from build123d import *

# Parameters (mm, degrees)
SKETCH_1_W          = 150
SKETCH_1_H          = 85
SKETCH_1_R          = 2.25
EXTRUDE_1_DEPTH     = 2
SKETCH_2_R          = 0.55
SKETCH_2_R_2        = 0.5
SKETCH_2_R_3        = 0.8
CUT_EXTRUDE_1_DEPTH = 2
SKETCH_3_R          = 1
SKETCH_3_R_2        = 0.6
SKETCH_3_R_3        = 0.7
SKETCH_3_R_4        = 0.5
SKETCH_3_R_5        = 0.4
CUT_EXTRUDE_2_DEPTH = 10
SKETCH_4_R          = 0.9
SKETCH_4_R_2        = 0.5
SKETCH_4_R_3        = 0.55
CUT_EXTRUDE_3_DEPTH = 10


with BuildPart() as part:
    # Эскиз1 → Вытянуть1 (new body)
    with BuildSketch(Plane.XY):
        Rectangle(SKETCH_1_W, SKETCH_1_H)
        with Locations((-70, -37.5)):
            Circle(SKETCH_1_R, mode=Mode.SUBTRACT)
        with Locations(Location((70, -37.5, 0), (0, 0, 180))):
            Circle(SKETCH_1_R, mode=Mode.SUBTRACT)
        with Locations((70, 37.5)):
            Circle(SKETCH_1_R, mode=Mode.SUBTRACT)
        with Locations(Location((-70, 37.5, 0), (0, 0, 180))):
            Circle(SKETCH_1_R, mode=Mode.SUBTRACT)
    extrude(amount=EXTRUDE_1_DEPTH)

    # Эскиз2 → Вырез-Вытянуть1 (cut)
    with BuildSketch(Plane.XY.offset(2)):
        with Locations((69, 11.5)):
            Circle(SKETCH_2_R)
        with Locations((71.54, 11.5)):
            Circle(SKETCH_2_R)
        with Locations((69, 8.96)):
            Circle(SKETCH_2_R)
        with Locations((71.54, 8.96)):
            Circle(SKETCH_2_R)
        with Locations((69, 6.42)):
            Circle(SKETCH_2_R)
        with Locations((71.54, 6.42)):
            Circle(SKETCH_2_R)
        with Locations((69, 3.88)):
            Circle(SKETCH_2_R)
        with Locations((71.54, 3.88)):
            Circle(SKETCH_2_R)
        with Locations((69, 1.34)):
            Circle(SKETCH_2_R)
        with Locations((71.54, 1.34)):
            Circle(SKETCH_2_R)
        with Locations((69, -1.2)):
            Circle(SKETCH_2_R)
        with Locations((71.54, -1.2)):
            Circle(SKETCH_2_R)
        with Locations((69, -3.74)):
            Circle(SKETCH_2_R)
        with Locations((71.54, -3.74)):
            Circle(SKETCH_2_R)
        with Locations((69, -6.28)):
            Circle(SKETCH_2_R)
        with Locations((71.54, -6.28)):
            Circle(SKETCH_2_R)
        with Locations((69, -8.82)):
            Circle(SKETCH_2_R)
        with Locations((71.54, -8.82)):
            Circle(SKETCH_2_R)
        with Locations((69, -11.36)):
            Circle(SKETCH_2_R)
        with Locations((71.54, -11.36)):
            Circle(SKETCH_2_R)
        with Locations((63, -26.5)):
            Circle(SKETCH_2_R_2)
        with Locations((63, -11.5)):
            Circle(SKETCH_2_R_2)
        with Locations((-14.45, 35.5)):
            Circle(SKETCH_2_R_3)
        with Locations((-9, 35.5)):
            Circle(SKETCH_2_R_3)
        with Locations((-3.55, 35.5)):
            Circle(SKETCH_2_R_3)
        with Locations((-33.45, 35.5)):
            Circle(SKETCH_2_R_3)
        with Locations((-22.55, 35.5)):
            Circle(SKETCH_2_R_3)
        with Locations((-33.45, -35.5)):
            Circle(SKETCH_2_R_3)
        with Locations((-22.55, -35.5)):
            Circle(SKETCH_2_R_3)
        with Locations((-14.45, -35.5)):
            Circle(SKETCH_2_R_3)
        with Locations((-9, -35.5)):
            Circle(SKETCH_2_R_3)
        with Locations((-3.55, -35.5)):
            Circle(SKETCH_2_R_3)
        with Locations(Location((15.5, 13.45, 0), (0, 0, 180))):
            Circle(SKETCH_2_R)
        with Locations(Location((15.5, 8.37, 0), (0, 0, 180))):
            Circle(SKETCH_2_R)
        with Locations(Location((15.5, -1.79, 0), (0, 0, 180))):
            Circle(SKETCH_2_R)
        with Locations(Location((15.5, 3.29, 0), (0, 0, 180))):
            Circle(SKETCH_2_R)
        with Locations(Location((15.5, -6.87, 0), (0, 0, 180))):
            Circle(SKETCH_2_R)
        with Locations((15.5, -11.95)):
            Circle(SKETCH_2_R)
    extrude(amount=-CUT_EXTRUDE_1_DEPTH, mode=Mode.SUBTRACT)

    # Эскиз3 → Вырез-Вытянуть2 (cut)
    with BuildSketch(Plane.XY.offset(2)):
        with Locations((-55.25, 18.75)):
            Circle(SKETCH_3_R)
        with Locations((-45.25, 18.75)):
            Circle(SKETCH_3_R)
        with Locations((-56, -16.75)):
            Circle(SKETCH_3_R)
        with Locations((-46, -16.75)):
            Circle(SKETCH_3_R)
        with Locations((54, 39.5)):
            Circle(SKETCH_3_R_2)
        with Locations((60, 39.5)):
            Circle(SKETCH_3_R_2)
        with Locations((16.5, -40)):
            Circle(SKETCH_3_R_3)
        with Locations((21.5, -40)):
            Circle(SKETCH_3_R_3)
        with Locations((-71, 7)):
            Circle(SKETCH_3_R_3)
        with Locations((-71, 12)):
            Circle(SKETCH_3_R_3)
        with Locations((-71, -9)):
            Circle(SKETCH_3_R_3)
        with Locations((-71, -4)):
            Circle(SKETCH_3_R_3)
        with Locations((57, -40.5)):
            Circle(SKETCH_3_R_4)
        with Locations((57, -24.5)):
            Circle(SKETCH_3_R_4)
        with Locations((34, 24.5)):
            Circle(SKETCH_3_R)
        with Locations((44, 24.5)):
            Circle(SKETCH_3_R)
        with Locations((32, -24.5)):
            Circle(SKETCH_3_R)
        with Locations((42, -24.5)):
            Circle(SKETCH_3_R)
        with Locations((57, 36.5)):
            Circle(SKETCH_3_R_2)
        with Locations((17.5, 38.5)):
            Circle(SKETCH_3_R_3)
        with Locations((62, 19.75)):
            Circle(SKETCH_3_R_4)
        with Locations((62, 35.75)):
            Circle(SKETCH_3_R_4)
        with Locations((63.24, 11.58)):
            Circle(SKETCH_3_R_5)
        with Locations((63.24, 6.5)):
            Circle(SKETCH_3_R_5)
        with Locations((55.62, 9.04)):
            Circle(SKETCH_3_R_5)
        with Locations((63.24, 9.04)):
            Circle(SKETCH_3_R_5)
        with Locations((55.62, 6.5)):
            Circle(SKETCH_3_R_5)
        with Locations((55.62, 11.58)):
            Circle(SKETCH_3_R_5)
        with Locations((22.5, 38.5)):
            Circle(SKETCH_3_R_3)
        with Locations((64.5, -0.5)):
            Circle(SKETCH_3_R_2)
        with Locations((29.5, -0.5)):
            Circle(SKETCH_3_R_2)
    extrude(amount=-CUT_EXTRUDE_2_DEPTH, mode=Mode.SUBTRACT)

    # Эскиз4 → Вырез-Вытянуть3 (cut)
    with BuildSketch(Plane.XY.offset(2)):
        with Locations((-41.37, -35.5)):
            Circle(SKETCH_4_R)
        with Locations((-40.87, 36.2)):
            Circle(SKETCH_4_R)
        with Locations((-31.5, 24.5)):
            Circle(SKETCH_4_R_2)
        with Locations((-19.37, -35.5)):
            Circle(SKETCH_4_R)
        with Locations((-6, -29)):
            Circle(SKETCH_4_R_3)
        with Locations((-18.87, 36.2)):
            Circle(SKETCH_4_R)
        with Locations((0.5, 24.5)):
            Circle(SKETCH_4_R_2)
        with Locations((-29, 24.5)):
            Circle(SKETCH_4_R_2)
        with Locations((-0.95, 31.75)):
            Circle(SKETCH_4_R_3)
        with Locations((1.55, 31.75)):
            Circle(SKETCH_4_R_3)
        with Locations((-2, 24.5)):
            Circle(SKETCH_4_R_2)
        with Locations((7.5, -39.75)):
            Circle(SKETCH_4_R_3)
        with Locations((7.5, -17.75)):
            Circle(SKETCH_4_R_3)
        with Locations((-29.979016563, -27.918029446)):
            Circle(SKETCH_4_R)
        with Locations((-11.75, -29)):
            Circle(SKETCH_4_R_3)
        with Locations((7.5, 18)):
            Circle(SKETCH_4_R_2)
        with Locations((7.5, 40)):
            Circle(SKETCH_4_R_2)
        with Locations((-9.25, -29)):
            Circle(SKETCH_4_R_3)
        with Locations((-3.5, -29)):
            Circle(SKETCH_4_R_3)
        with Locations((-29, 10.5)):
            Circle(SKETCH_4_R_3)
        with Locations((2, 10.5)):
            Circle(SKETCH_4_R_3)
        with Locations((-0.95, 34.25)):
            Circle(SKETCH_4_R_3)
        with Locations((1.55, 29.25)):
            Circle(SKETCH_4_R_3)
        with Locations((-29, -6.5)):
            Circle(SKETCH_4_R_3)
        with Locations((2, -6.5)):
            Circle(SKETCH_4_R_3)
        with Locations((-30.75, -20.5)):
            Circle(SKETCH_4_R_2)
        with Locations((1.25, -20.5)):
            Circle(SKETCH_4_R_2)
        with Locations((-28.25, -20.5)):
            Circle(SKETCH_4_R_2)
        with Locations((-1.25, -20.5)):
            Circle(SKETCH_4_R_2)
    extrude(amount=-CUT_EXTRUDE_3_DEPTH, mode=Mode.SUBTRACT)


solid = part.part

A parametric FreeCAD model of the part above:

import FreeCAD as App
import Part
import Sketcher
from FreeCAD import Vector


def add_polygon(sketch, points):
    """Adds a closed chain of lines whose ends are joined by coincident constraints."""
    first, n = sketch.GeometryCount, len(points)
    for a, b in zip(points, points[1:] + points[:1]):
        sketch.addGeometry(Part.LineSegment(App.Vector(*a, 0), App.Vector(*b, 0)), False)
    for i in range(n):
        sketch.addConstraint(Sketcher.Constraint("Coincident", first + i, 2, first + (i + 1) % n, 1))

doc = App.newDocument("Part")
params = doc.addObject("Spreadsheet::Sheet", "Params")
for row, (alias, value) in enumerate([
    ("sketch1_diameter", "4.5 mm"),
    ("sketch1_width", "150 mm"),
    ("sketch1_height", "85 mm"),
    ("pad1_length", "2 mm"),
    ("sketch2_diameter", "1 mm"),
    ("sketch2_diameter2", "1.1 mm"),
    ("sketch2_diameter3", "1.6 mm"),
    ("pocket1_length", "2 mm"),
    ("sketch3_diameter", "2 mm"),
    ("sketch3_diameter2", "1 mm"),
    ("sketch3_diameter3", "1.2 mm"),
    ("sketch3_diameter4", "1.4 mm"),
    ("sketch3_diameter5", "0.8 mm"),
    ("pocket2_length", "10 mm"),
    ("sketch4_diameter", "1 mm"),
    ("sketch4_diameter2", "1.8 mm"),
    ("sketch4_diameter3", "1.1 mm"),
    ("pocket3_length", "10 mm"),
], start=1):
    params.set(f"A{row}", alias)
    params.set(f"B{row}", "=" + value)
    params.setAlias(f"B{row}", alias)

body = doc.addObject("PartDesign::Body", "Body")

sketch1 = doc.addObject("Sketcher::SketchObject", "Sketch")
body.addObject(sketch1)
sketch1.AttachmentSupport = (doc.XY_Plane, [""])
sketch1.MapMode = "FlatFace"
add_polygon(sketch1, [(-75, 42.5), (-75, -42.5), (75, -42.5), (75, 42.5)])
sketch1.addGeometry(Part.Circle(Vector(-70, -37.5, 0), Vector(0, 0, 1), 2.2), False)
sketch1.addGeometry(Part.Circle(Vector(70, -37.5, 0), Vector(0, 0, 1), 2.2), False)
sketch1.addGeometry(Part.Circle(Vector(-70, 37.5, 0), Vector(0, 0, 1), 2.2), False)
sketch1.addGeometry(Part.Circle(Vector(70, 37.5, 0), Vector(0, 0, 1), 2.2), False)
sketch1.addConstraint([
    Sketcher.Constraint("Vertical", 0),
    Sketcher.Constraint("Horizontal", 1),
    Sketcher.Constraint("Vertical", 2),
    Sketcher.Constraint("Horizontal", 3),
    Sketcher.Constraint("Equal", 4, 5),
    Sketcher.Constraint("Equal", 5, 6),
    Sketcher.Constraint("Equal", 6, 7),
    Sketcher.Constraint("Symmetric", 5, 3, 6, 3, -1, 1),
    Sketcher.Constraint("Symmetric", 4, 3, 7, 3, -1, 1),
    Sketcher.Constraint("Symmetric", 0, 2, 2, 2, -1, 1),
    Sketcher.Constraint("Symmetric", 4, 3, 5, 3, -2),
    Sketcher.Constraint("Diameter", 4, 4.5),
    Sketcher.Constraint("DistanceX", 1, 1, 1, 2, 150.0),
    Sketcher.Constraint("DistanceY", 0, 2, 0, 1, 85.0),
    Sketcher.Constraint("DistanceX", 4, 3, -1, 1, 70.0),
    Sketcher.Constraint("DistanceY", 4, 3, 6, 3, 75.0),
])
sketch1.setExpression("Constraints[15]", "Params.sketch1_diameter")
sketch1.setExpression("Constraints[16]", "Params.sketch1_width")
sketch1.setExpression("Constraints[17]", "Params.sketch1_height")
pad1 = doc.addObject("PartDesign::Pad", "Pad")
body.addObject(pad1)
pad1.Profile = sketch1
pad1.setExpression("Length", "Params.pad1_length")

sketch2 = doc.addObject("Sketcher::SketchObject", "Sketch001")
body.addObject(sketch2)
sketch2.AttachmentSupport = (doc.XY_Plane, [""])
sketch2.MapMode = "FlatFace"
sketch2.AttachmentOffset = App.Placement(Vector(0, 0, 2), App.Rotation())
sketch2.addGeometry([
    Part.Circle(Vector(69, 11.5, 0), Vector(0, 0, 1), 0.6),
    Part.Circle(Vector(71.5, 11.5, 0), Vector(0, 0, 1), 0.6),
    Part.Circle(Vector(69, 9, 0), Vector(0, 0, 1), 0.6),
    Part.Circle(Vector(71.5, 9, 0), Vector(0, 0, 1), 0.6),
    Part.Circle(Vector(69, 6.4, 0), Vector(0, 0, 1), 0.6),
    Part.Circle(Vector(71.5, 6.4, 0), Vector(0, 0, 1), 0.6),
    Part.Circle(Vector(69, 3.9, 0), Vector(0, 0, 1), 0.6),
    Part.Circle(Vector(71.5, 3.9, 0), Vector(0, 0, 1), 0.6),
    Part.Circle(Vector(69, 1.3, 0), Vector(0, 0, 1), 0.6),
    Part.Circle(Vector(71.5, 1.3, 0), Vector(0, 0, 1), 0.6),
    Part.Circle(Vector(69, -1.2, 0), Vector(0, 0, 1), 0.6),
    Part.Circle(Vector(71.5, -1.2, 0), Vector(0, 0, 1), 0.6),
    Part.Circle(Vector(69, -3.7, 0), Vector(0, 0, 1), 0.6),
    Part.Circle(Vector(71.5, -3.7, 0), Vector(0, 0, 1), 0.6),
    Part.Circle(Vector(69, -6.3, 0), Vector(0, 0, 1), 0.6),
    Part.Circle(Vector(71.5, -6.3, 0), Vector(0, 0, 1), 0.6),
    Part.Circle(Vector(69, -8.8, 0), Vector(0, 0, 1), 0.6),
    Part.Circle(Vector(71.5, -8.8, 0), Vector(0, 0, 1), 0.6),
    Part.Circle(Vector(69, -11.4, 0), Vector(0, 0, 1), 0.6),
    Part.Circle(Vector(71.5, -11.4, 0), Vector(0, 0, 1), 0.6),
    Part.Circle(Vector(63, -26.5, 0), Vector(0, 0, 1), 0.5),
    Part.Circle(Vector(63, -11.5, 0), Vector(0, 0, 1), 0.5),
    Part.Circle(Vector(-14.4, 35.5, 0), Vector(0, 0, 1), 0.8),
    Part.Circle(Vector(-9, 35.5, 0), Vector(0, 0, 1), 0.8),
    Part.Circle(Vector(-3.5, 35.5, 0), Vector(0, 0, 1), 0.8),
    Part.Circle(Vector(-33.5, 35.5, 0), Vector(0, 0, 1), 0.8),
    Part.Circle(Vector(-22.6, 35.5, 0), Vector(0, 0, 1), 0.8),
    Part.Circle(Vector(-33.5, -35.5, 0), Vector(0, 0, 1), 0.8),
    Part.Circle(Vector(-22.6, -35.5, 0), Vector(0, 0, 1), 0.8),
    Part.Circle(Vector(-14.4, -35.5, 0), Vector(0, 0, 1), 0.8),
    Part.Circle(Vector(-9, -35.5, 0), Vector(0, 0, 1), 0.8),
    Part.Circle(Vector(-3.5, -35.5, 0), Vector(0, 0, 1), 0.8),
    Part.Circle(Vector(15.5, 13.4, 0), Vector(0, 0, 1), 0.6),
    Part.Circle(Vector(15.5, 8.4, 0), Vector(0, 0, 1), 0.6),
    Part.Circle(Vector(15.5, -1.8, 0), Vector(0, 0, 1), 0.6),
    Part.Circle(Vector(15.5, 3.3, 0), Vector(0, 0, 1), 0.6),
    Part.Circle(Vector(15.5, -6.9, 0), Vector(0, 0, 1), 0.6),
    Part.Circle(Vector(15.5, -11.9, 0), Vector(0, 0, 1), 0.6),
], False)
sketch2.addConstraint([
    Sketcher.Constraint("Equal", 0, 1),
    Sketcher.Constraint("Equal", 1, 2),
    Sketcher.Constraint("Equal", 2, 3),
    Sketcher.Constraint("Equal", 3, 4),
    Sketcher.Constraint("Equal", 4, 5),
    Sketcher.Constraint("Equal", 5, 6),
    Sketcher.Constraint("Equal", 6, 7),
    Sketcher.Constraint("Equal", 7, 8),
    Sketcher.Constraint("Equal", 8, 9),
    Sketcher.Constraint("Equal", 9, 10),
    Sketcher.Constraint("Equal", 10, 11),
    Sketcher.Constraint("Equal", 11, 12),
    Sketcher.Constraint("Equal", 12, 13),
    Sketcher.Constraint("Equal", 13, 14),
    Sketcher.Constraint("Equal", 14, 15),
    Sketcher.Constraint("Equal", 15, 16),
    Sketcher.Constraint("Equal", 16, 17),
    Sketcher.Constraint("Equal", 17, 18),
    Sketcher.Constraint("Equal", 18, 19),
    Sketcher.Constraint("Equal", 20, 21),
    Sketcher.Constraint("Equal", 22, 23),
    Sketcher.Constraint("Equal", 23, 24),
    Sketcher.Constraint("Equal", 24, 25),
    Sketcher.Constraint("Equal", 25, 26),
    Sketcher.Constraint("Equal", 26, 27),
    Sketcher.Constraint("Equal", 27, 28),
    Sketcher.Constraint("Equal", 28, 29),
    Sketcher.Constraint("Equal", 29, 30),
    Sketcher.Constraint("Equal", 30, 31),
    Sketcher.Constraint("Equal", 19, 32),
    Sketcher.Constraint("Equal", 32, 33),
    Sketcher.Constraint("Equal", 33, 34),
    Sketcher.Constraint("Equal", 34, 35),
    Sketcher.Constraint("Equal", 35, 36),
    Sketcher.Constraint("Equal", 36, 37),
    Sketcher.Constraint("Symmetric", 25, 3, 27, 3, -1),
    Sketcher.Constraint("Symmetric", 26, 3, 28, 3, -1),
    Sketcher.Constraint("Symmetric", 22, 3, 29, 3, -1),
    Sketcher.Constraint("Symmetric", 23, 3, 30, 3, -1),
    Sketcher.Constraint("Symmetric", 24, 3, 31, 3, -1),
    Sketcher.Constraint("Horizontal", 0, 3, 1, 3),
    Sketcher.Constraint("Horizontal", 2, 3, 3, 3),
    Sketcher.Constraint("Horizontal", 4, 3, 5, 3),
    Sketcher.Constraint("Horizontal", 6, 3, 7, 3),
    Sketcher.Constraint("Horizontal", 8, 3, 9, 3),
    Sketcher.Constraint("Horizontal", 10, 3, 11, 3),
    Sketcher.Constraint("Horizontal", 12, 3, 13, 3),
    Sketcher.Constraint("Horizontal", 14, 3, 15, 3),
    Sketcher.Constraint("Horizontal", 16, 3, 17, 3),
    Sketcher.Constraint("Horizontal", 18, 3, 19, 3),
    Sketcher.Constraint("Horizontal", 22, 3, 23, 3),
    Sketcher.Constraint("Horizontal", 23, 3, 24, 3),
    Sketcher.Constraint("Horizontal", 24, 3, 25, 3),
    Sketcher.Constraint("Horizontal", 25, 3, 26, 3),
    Sketcher.Constraint("Vertical", 0, 3, 2, 3),
    Sketcher.Constraint("Vertical", 1, 3, 3, 3),
    Sketcher.Constraint("Vertical", 2, 3, 4, 3),
    Sketcher.Constraint("Vertical", 3, 3, 5, 3),
    Sketcher.Constraint("Vertical", 4, 3, 6, 3),
    Sketcher.Constraint("Vertical", 5, 3, 7, 3),
    Sketcher.Constraint("Vertical", 6, 3, 8, 3),
    Sketcher.Constraint("Vertical", 7, 3, 9, 3),
    Sketcher.Constraint("Vertical", 8, 3, 10, 3),
    Sketcher.Constraint("Vertical", 9, 3, 11, 3),
    Sketcher.Constraint("Vertical", 10, 3, 12, 3),
    Sketcher.Constraint("Vertical", 11, 3, 13, 3),
    Sketcher.Constraint("Vertical", 12, 3, 14, 3),
    Sketcher.Constraint("Vertical", 13, 3, 15, 3),
    Sketcher.Constraint("Vertical", 14, 3, 16, 3),
    Sketcher.Constraint("Vertical", 15, 3, 17, 3),
    Sketcher.Constraint("Vertical", 16, 3, 18, 3),
    Sketcher.Constraint("Vertical", 17, 3, 19, 3),
    Sketcher.Constraint("Vertical", 20, 3, 21, 3),
    Sketcher.Constraint("Vertical", 32, 3, 33, 3),
    Sketcher.Constraint("Vertical", 33, 3, 34, 3),
    Sketcher.Constraint("Vertical", 34, 3, 35, 3),
    Sketcher.Constraint("Vertical", 35, 3, 36, 3),
    Sketcher.Constraint("Vertical", 36, 3, 37, 3),
    Sketcher.Constraint("Diameter", 20, 1.0),
    Sketcher.Constraint("Diameter", 0, 1.1),
    Sketcher.Constraint("Diameter", 22, 1.6),
    Sketcher.Constraint("DistanceX", -1, 1, 0, 3, 69.0),
    Sketcher.Constraint("DistanceX", -1, 1, 20, 3, 63.0),
    Sketcher.Constraint("DistanceX", 23, 3, -1, 1, 9.0),
    Sketcher.Constraint("DistanceY", 0, 3, 22, 3, 24.0),
    Sketcher.Constraint("DistanceX", 25, 3, 22, 3, 19.0),
    Sketcher.Constraint("DistanceX", 26, 3, 24, 3, 19.0),
    Sketcher.Constraint("DistanceY", 27, 3, 25, 3, 71.0),
    Sketcher.Constraint("DistanceY", 31, 3, 20, 3, 9.0),
    Sketcher.Constraint("DistanceY", 10, 3, -1, 1, 1.2),
    Sketcher.Constraint("DistanceY", 21, 3, -1, 1, 11.5),
    Sketcher.Constraint("DistanceX", -1, 1, 32, 3, 15.5),
    Sketcher.Constraint("DistanceX", 22, 3, 24, 3, 10.9),
    Sketcher.Constraint("DistanceY", 37, 3, 32, 3, 25.4),
    Sketcher.Constraint("DistanceX", -1, 1, 1, 3, 71.54),
    Sketcher.Constraint("DistanceY", -1, 1, 2, 3, 8.96),
    Sketcher.Constraint("DistanceY", -1, 1, 4, 3, 6.42),
    Sketcher.Constraint("DistanceY", -1, 1, 6, 3, 3.88),
    Sketcher.Constraint("DistanceY", -1, 1, 8, 3, 1.34),
    Sketcher.Constraint("DistanceY", 12, 3, -1, 1, 3.74),
    Sketcher.Constraint("DistanceY", 14, 3, -1, 1, 6.28),
    Sketcher.Constraint("DistanceY", 16, 3, -1, 1, 8.82),
    Sketcher.Constraint("DistanceY", 18, 3, -1, 1, 11.36),
    Sketcher.Constraint("DistanceX", 22, 3, -1, 1, 14.45),
    Sketcher.Constraint("DistanceY", -1, 1, 32, 3, 13.45),
    Sketcher.Constraint("DistanceY", -1, 1, 33, 3, 8.37),
    Sketcher.Constraint("DistanceY", 34, 3, -1, 1, 1.79),
    Sketcher.Constraint("DistanceY", -1, 1, 35, 3, 3.29),
    Sketcher.Constraint("DistanceY", 36, 3, -1, 1, 6.87),
])
sketch2.setExpression("Constraints[78]", "Params.sketch2_diameter")
sketch2.setExpression("Constraints[79]", "Params.sketch2_diameter2")
sketch2.setExpression("Constraints[80]", "Params.sketch2_diameter3")
pocket1 = doc.addObject("PartDesign::Pocket", "Pocket")
body.addObject(pocket1)
pocket1.Profile = sketch2
pocket1.setExpression("Length", "Params.pocket1_length")

sketch3 = doc.addObject("Sketcher::SketchObject", "Sketch002")
body.addObject(sketch3)
sketch3.AttachmentSupport = (doc.XY_Plane, [""])
sketch3.MapMode = "FlatFace"
sketch3.AttachmentOffset = App.Placement(Vector(0, 0, 2), App.Rotation())
sketch3.addGeometry([
    Part.Circle(Vector(-55.25, 18.75, 0), Vector(0, 0, 1), 1),
    Part.Circle(Vector(-45.25, 18.75, 0), Vector(0, 0, 1), 1),
    Part.Circle(Vector(-56, -16.75, 0), Vector(0, 0, 1), 1),
    Part.Circle(Vector(-46, -16.75, 0), Vector(0, 0, 1), 1),
    Part.Circle(Vector(54, 39.5, 0), Vector(0, 0, 1), 0.6),
    Part.Circle(Vector(60, 39.5, 0), Vector(0, 0, 1), 0.6),
    Part.Circle(Vector(16.5, -40, 0), Vector(0, 0, 1), 0.7),
    Part.Circle(Vector(21.5, -40, 0), Vector(0, 0, 1), 0.7),
    Part.Circle(Vector(-71, 7, 0), Vector(0, 0, 1), 0.7),
    Part.Circle(Vector(-71, 12, 0), Vector(0, 0, 1), 0.7),
    Part.Circle(Vector(-71, -9, 0), Vector(0, 0, 1), 0.7),
    Part.Circle(Vector(-71, -4, 0), Vector(0, 0, 1), 0.7),
    Part.Circle(Vector(57, -40.5, 0), Vector(0, 0, 1), 0.5),
    Part.Circle(Vector(57, -24.5, 0), Vector(0, 0, 1), 0.5),
    Part.Circle(Vector(34, 24.5, 0), Vector(0, 0, 1), 1),
    Part.Circle(Vector(44, 24.5, 0), Vector(0, 0, 1), 1),
    Part.Circle(Vector(32, -24.5, 0), Vector(0, 0, 1), 1),
    Part.Circle(Vector(42, -24.5, 0), Vector(0, 0, 1), 1),
    Part.Circle(Vector(57, 36.5, 0), Vector(0, 0, 1), 0.6),
    Part.Circle(Vector(17.5, 38.5, 0), Vector(0, 0, 1), 0.7),
    Part.Circle(Vector(62, 19.75, 0), Vector(0, 0, 1), 0.5),
    Part.Circle(Vector(62, 35.75, 0), Vector(0, 0, 1), 0.5),
    Part.Circle(Vector(63.24, 11.58, 0), Vector(0, 0, 1), 0.4),
    Part.Circle(Vector(63.24, 6.5, 0), Vector(0, 0, 1), 0.4),
    Part.Circle(Vector(55.62, 9.04, 0), Vector(0, 0, 1), 0.4),
    Part.Circle(Vector(63.24, 9.04, 0), Vector(0, 0, 1), 0.4),
    Part.Circle(Vector(55.62, 6.5, 0), Vector(0, 0, 1), 0.4),
    Part.Circle(Vector(55.62, 11.58, 0), Vector(0, 0, 1), 0.4),
    Part.Circle(Vector(22.5, 38.5, 0), Vector(0, 0, 1), 0.7),
    Part.Circle(Vector(64.5, -0.5, 0), Vector(0, 0, 1), 0.6),
    Part.Circle(Vector(29.5, -0.5, 0), Vector(0, 0, 1), 0.6),
], False)
sketch3.addConstraint([
    Sketcher.Constraint("Equal", 0, 1),
    Sketcher.Constraint("Equal", 1, 2),
    Sketcher.Constraint("Equal", 2, 3),
    Sketcher.Constraint("Equal", 4, 5),
    Sketcher.Constraint("Equal", 6, 7),
    Sketcher.Constraint("Equal", 7, 8),
    Sketcher.Constraint("Equal", 8, 9),
    Sketcher.Constraint("Equal", 9, 10),
    Sketcher.Constraint("Equal", 10, 11),
    Sketcher.Constraint("Equal", 12, 13),
    Sketcher.Constraint("Equal", 3, 14),
    Sketcher.Constraint("Equal", 14, 15),
    Sketcher.Constraint("Equal", 15, 16),
    Sketcher.Constraint("Equal", 16, 17),
    Sketcher.Constraint("Equal", 5, 18),
    Sketcher.Constraint("Equal", 11, 19),
    Sketcher.Constraint("Equal", 13, 20),
    Sketcher.Constraint("Equal", 20, 21),
    Sketcher.Constraint("Equal", 22, 23),
    Sketcher.Constraint("Equal", 23, 24),
    Sketcher.Constraint("Equal", 24, 25),
    Sketcher.Constraint("Equal", 25, 26),
    Sketcher.Constraint("Equal", 26, 27),
    Sketcher.Constraint("Equal", 19, 28),
    Sketcher.Constraint("Equal", 18, 29),
    Sketcher.Constraint("Equal", 29, 30),
    Sketcher.Constraint("Horizontal", 0, 3, 1, 3),
    Sketcher.Constraint("Horizontal", 2, 3, 3, 3),
    Sketcher.Constraint("Horizontal", 4, 3, 5, 3),
    Sketcher.Constraint("Horizontal", 6, 3, 7, 3),
    Sketcher.Constraint("Horizontal", 14, 3, 15, 3),
    Sketcher.Constraint("Horizontal", 13, 3, 16, 3),
    Sketcher.Constraint("Horizontal", 16, 3, 17, 3),
    Sketcher.Constraint("Horizontal", 24, 3, 25, 3),
    Sketcher.Constraint("Horizontal", 23, 3, 26, 3),
    Sketcher.Constraint("Horizontal", 22, 3, 27, 3),
    Sketcher.Constraint("Horizontal", 19, 3, 28, 3),
    Sketcher.Constraint("Horizontal", 29, 3, 30, 3),
    Sketcher.Constraint("Vertical", 8, 3, 9, 3),
    Sketcher.Constraint("Vertical", 9, 3, 10, 3),
    Sketcher.Constraint("Vertical", 10, 3, 11, 3),
    Sketcher.Constraint("Vertical", 12, 3, 13, 3),
    Sketcher.Constraint("Vertical", 13, 3, 18, 3),
    Sketcher.Constraint("Vertical", 20, 3, 21, 3),
    Sketcher.Constraint("Vertical", 22, 3, 23, 3),
    Sketcher.Constraint("Vertical", 23, 3, 25, 3),
    Sketcher.Constraint("Vertical", 24, 3, 26, 3),
    Sketcher.Constraint("Vertical", 26, 3, 27, 3),
    Sketcher.Constraint("Diameter", 0, 2.0),
    Sketcher.Constraint("Diameter", 12, 1.0),
    Sketcher.Constraint("Diameter", 4, 1.2),
    Sketcher.Constraint("Diameter", 6, 1.4),
    Sketcher.Constraint("Diameter", 22, 0.8),
    Sketcher.Constraint("DistanceX", 2, 3, -1, 1, 56.0),
    Sketcher.Constraint("DistanceX", 3, 3, -1, 1, 46.0),
    Sketcher.Constraint("DistanceX", -1, 1, 4, 3, 54.0),
    Sketcher.Constraint("DistanceX", -1, 1, 5, 3, 60.0),
    Sketcher.Constraint("DistanceY", 6, 3, -1, 1, 40.0),
    Sketcher.Constraint("DistanceX", 8, 3, -1, 1, 71.0),
    Sketcher.Constraint("DistanceY", -1, 1, 8, 3, 7.0),
    Sketcher.Constraint("DistanceY", -1, 1, 9, 3, 12.0),
    Sketcher.Constraint("DistanceY", 10, 3, -1, 1, 9.0),
    Sketcher.Constraint("DistanceY", 11, 3, -1, 1, 4.0),
    Sketcher.Constraint("DistanceX", -1, 1, 12, 3, 57.0),
    Sketcher.Constraint("DistanceX", -1, 1, 14, 3, 34.0),
    Sketcher.Constraint("DistanceX", -1, 1, 15, 3, 44.0),
    Sketcher.Constraint("DistanceX", -1, 1, 16, 3, 32.0),
    Sketcher.Constraint("DistanceX", -1, 1, 17, 3, 42.0),
    Sketcher.Constraint("DistanceX", -1, 1, 20, 3, 62.0),
    Sketcher.Constraint("DistanceX", 0, 3, 1, 3, 10.0),
    Sketcher.Constraint("DistanceX", 6, 3, 7, 3, 5.0),
    Sketcher.Constraint("DistanceY", 12, 3, 4, 3, 80.0),
    Sketcher.Constraint("DistanceY", 12, 3, 13, 3, 16.0),
    Sketcher.Constraint("DistanceY", 14, 3, 4, 3, 15.0),
    Sketcher.Constraint("DistanceY", 18, 3, 4, 3, 3.0),
    Sketcher.Constraint("DistanceY", 14, 3, 19, 3, 14.0),
    Sketcher.Constraint("DistanceY", 20, 3, 21, 3, 16.0),
    Sketcher.Constraint("DistanceY", 23, 3, 15, 3, 18.0),
    Sketcher.Constraint("DistanceX", 19, 3, 28, 3, 5.0),
    Sketcher.Constraint("DistanceY", 29, 3, 23, 3, 7.0),
    Sketcher.Constraint("DistanceY", -1, 1, 4, 3, 39.5),
    Sketcher.Constraint("DistanceX", -1, 1, 6, 3, 16.5),
    Sketcher.Constraint("DistanceX", -1, 1, 19, 3, 17.5),
    Sketcher.Constraint("DistanceX", -1, 1, 29, 3, 64.5),
    Sketcher.Constraint("DistanceX", -1, 1, 30, 3, 29.5),
    Sketcher.Constraint("DistanceY", 2, 3, 0, 3, 35.5),
    Sketcher.Constraint("DistanceX", 0, 3, -1, 1, 55.25),
    Sketcher.Constraint("DistanceY", -1, 1, 0, 3, 18.75),
    Sketcher.Constraint("DistanceY", -1, 1, 20, 3, 19.75),
    Sketcher.Constraint("DistanceX", -1, 1, 22, 3, 63.24),
    Sketcher.Constraint("DistanceY", -1, 1, 22, 3, 11.58),
    Sketcher.Constraint("DistanceX", -1, 1, 24, 3, 55.62),
    Sketcher.Constraint("DistanceY", -1, 1, 24, 3, 9.04),
])
sketch3.setExpression("Constraints[48]", "Params.sketch3_diameter")
sketch3.setExpression("Constraints[49]", "Params.sketch3_diameter2")
sketch3.setExpression("Constraints[50]", "Params.sketch3_diameter3")
sketch3.setExpression("Constraints[51]", "Params.sketch3_diameter4")
sketch3.setExpression("Constraints[52]", "Params.sketch3_diameter5")
pocket2 = doc.addObject("PartDesign::Pocket", "Pocket001")
body.addObject(pocket2)
pocket2.Profile = sketch3
pocket2.setExpression("Length", "Params.pocket2_length")

sketch4 = doc.addObject("Sketcher::SketchObject", "Sketch003")
body.addObject(sketch4)
sketch4.AttachmentSupport = (doc.XY_Plane, [""])
sketch4.MapMode = "FlatFace"
sketch4.AttachmentOffset = App.Placement(Vector(0, 0, 2), App.Rotation())
sketch4.addGeometry([
    Part.Circle(Vector(-41.4, -35.5, 0), Vector(0, 0, 1), 0.9),
    Part.Circle(Vector(-40.9, 36.2, 0), Vector(0, 0, 1), 0.9),
    Part.Circle(Vector(-31.5, 24.5, 0), Vector(0, 0, 1), 0.5),
    Part.Circle(Vector(-19.4, -35.5, 0), Vector(0, 0, 1), 0.9),
    Part.Circle(Vector(-6, -29, 0), Vector(0, 0, 1), 0.6),
    Part.Circle(Vector(-18.9, 36.2, 0), Vector(0, 0, 1), 0.9),
    Part.Circle(Vector(0.5, 24.5, 0), Vector(0, 0, 1), 0.5),
    Part.Circle(Vector(-29, 24.5, 0), Vector(0, 0, 1), 0.5),
    Part.Circle(Vector(-0.9, 31.8, 0), Vector(0, 0, 1), 0.6),
    Part.Circle(Vector(1.6, 31.8, 0), Vector(0, 0, 1), 0.6),
    Part.Circle(Vector(-2, 24.5, 0), Vector(0, 0, 1), 0.5),
    Part.Circle(Vector(7.5, -39.8, 0), Vector(0, 0, 1), 0.6),
    Part.Circle(Vector(7.5, -17.8, 0), Vector(0, 0, 1), 0.6),
    Part.Circle(Vector(-30, -27.9, 0), Vector(0, 0, 1), 0.9),
    Part.Circle(Vector(-11.8, -29, 0), Vector(0, 0, 1), 0.6),
    Part.Circle(Vector(7.5, 18, 0), Vector(0, 0, 1), 0.5),
    Part.Circle(Vector(7.5, 40, 0), Vector(0, 0, 1), 0.5),
    Part.Circle(Vector(-9.2, -29, 0), Vector(0, 0, 1), 0.6),
    Part.Circle(Vector(-3.5, -29, 0), Vector(0, 0, 1), 0.6),
    Part.Circle(Vector(-29, 10.5, 0), Vector(0, 0, 1), 0.6),
    Part.Circle(Vector(2, 10.5, 0), Vector(0, 0, 1), 0.6),
    Part.Circle(Vector(-0.9, 34.2, 0), Vector(0, 0, 1), 0.6),
    Part.Circle(Vector(1.6, 29.2, 0), Vector(0, 0, 1), 0.6),
    Part.Circle(Vector(-29, -6.5, 0), Vector(0, 0, 1), 0.6),
    Part.Circle(Vector(2, -6.5, 0), Vector(0, 0, 1), 0.6),
    Part.Circle(Vector(-30.8, -20.5, 0), Vector(0, 0, 1), 0.5),
    Part.Circle(Vector(1.2, -20.5, 0), Vector(0, 0, 1), 0.5),
    Part.Circle(Vector(-28.2, -20.5, 0), Vector(0, 0, 1), 0.5),
    Part.Circle(Vector(-1.2, -20.5, 0), Vector(0, 0, 1), 0.5),
], False)
sketch4.addConstraint([
    Sketcher.Constraint("Equal", 0, 1),
    Sketcher.Constraint("Equal", 1, 3),
    Sketcher.Constraint("Equal", 3, 5),
    Sketcher.Constraint("Equal", 2, 6),
    Sketcher.Constraint("Equal", 6, 7),
    Sketcher.Constraint("Equal", 4, 8),
    Sketcher.Constraint("Equal", 8, 9),
    Sketcher.Constraint("Equal", 7, 10),
    Sketcher.Constraint("Equal", 9, 11),
    Sketcher.Constraint("Equal", 11, 12),
    Sketcher.Constraint("Equal", 5, 13),
    Sketcher.Constraint("Equal", 12, 14),
    Sketcher.Constraint("Equal", 10, 15),
    Sketcher.Constraint("Equal", 15, 16),
    Sketcher.Constraint("Equal", 14, 17),
    Sketcher.Constraint("Equal", 17, 18),
    Sketcher.Constraint("Equal", 18, 19),
    Sketcher.Constraint("Equal", 19, 20),
    Sketcher.Constraint("Equal", 20, 21),
    Sketcher.Constraint("Equal", 21, 22),
    Sketcher.Constraint("Equal", 22, 23),
    Sketcher.Constraint("Equal", 23, 24),
    Sketcher.Constraint("Equal", 16, 25),
    Sketcher.Constraint("Equal", 25, 26),
    Sketcher.Constraint("Equal", 26, 27),
    Sketcher.Constraint("Equal", 27, 28),
    Sketcher.Constraint("Symmetric", 26, 3, 28, 3, -2),
    Sketcher.Constraint("Horizontal", 0, 3, 3, 3),
    Sketcher.Constraint("Horizontal", 1, 3, 5, 3),
    Sketcher.Constraint("Horizontal", 2, 3, 6, 3),
    Sketcher.Constraint("Horizontal", 6, 3, 7, 3),
    Sketcher.Constraint("Horizontal", 8, 3, 9, 3),
    Sketcher.Constraint("Horizontal", 7, 3, 10, 3),
    Sketcher.Constraint("Horizontal", 4, 3, 14, 3),
    Sketcher.Constraint("Horizontal", 14, 3, 17, 3),
    Sketcher.Constraint("Horizontal", 17, 3, 18, 3),
    Sketcher.Constraint("Horizontal", 19, 3, 20, 3),
    Sketcher.Constraint("Horizontal", 23, 3, 24, 3),
    Sketcher.Constraint("Horizontal", 25, 3, 26, 3),
    Sketcher.Constraint("Horizontal", 26, 3, 27, 3),
    Sketcher.Constraint("Vertical", 11, 3, 12, 3),
    Sketcher.Constraint("Vertical", 12, 3, 15, 3),
    Sketcher.Constraint("Vertical", 15, 3, 16, 3),
    Sketcher.Constraint("Vertical", 7, 3, 19, 3),
    Sketcher.Constraint("Vertical", 8, 3, 21, 3),
    Sketcher.Constraint("Vertical", 9, 3, 22, 3),
    Sketcher.Constraint("Vertical", 19, 3, 23, 3),
    Sketcher.Constraint("Vertical", 20, 3, 24, 3),
    Sketcher.Constraint("Diameter", 2, 1.0),
    Sketcher.Constraint("Diameter", 0, 1.8),
    Sketcher.Constraint("Diameter", 4, 1.1),
    Sketcher.Constraint("DistanceX", 4, 3, -1, 1, 6.0),
    Sketcher.Constraint("DistanceY", 4, 3, -1, 1, 29.0),
    Sketcher.Constraint("DistanceX", 7, 3, -1, 1, 29.0),
    Sketcher.Constraint("DistanceX", 10, 3, -1, 1, 2.0),
    Sketcher.Constraint("DistanceY", -1, 1, 15, 3, 18.0),
    Sketcher.Constraint("DistanceY", -1, 1, 16, 3, 40.0),
    Sketcher.Constraint("DistanceX", -1, 1, 20, 3, 2.0),
    Sketcher.Constraint("DistanceY", 0, 3, 2, 3, 60.0),
    Sketcher.Constraint("DistanceX", 0, 3, 3, 3, 22.0),
    Sketcher.Constraint("DistanceX", 1, 3, 5, 3, 22.0),
    Sketcher.Constraint("DistanceX", 2, 3, 6, 3, 32.0),
    Sketcher.Constraint("DistanceX", 6, 3, 11, 3, 7.0),
    Sketcher.Constraint("DistanceY", 11, 3, 12, 3, 22.0),
    Sketcher.Constraint("DistanceX", 18, 3, 11, 3, 11.0),
    Sketcher.Constraint("DistanceY", 19, 3, 7, 3, 14.0),
    Sketcher.Constraint("DistanceY", 22, 3, 21, 3, 5.0),
    Sketcher.Constraint("DistanceY", 23, 3, 19, 3, 17.0),
    Sketcher.Constraint("DistanceY", 25, 3, 23, 3, 14.0),
    Sketcher.Constraint("DistanceX", 25, 3, 14, 3, 19.0),
    Sketcher.Constraint("DistanceX", 17, 3, 28, 3, 8.0),
    Sketcher.Constraint("DistanceY", 0, 3, -1, 1, 35.5),
    Sketcher.Constraint("DistanceY", -1, 1, 1, 3, 36.2),
    Sketcher.Constraint("DistanceX", 2, 3, -1, 1, 31.5),
    Sketcher.Constraint("DistanceX", 0, 3, 1, 3, 0.5),
    Sketcher.Constraint("DistanceX", 8, 3, 9, 3, 2.5),
    Sketcher.Constraint("DistanceX", 14, 3, 17, 3, 2.5),
    Sketcher.Constraint("DistanceY", 8, 3, 21, 3, 2.5),
    Sketcher.Constraint("DistanceX", 17, 3, 26, 3, 10.5),
    Sketcher.Constraint("DistanceX", 25, 3, 27, 3, 2.5),
    Sketcher.Constraint("DistanceX", 0, 3, -1, 1, 41.37),
    Sketcher.Constraint("DistanceX", 8, 3, -1, 1, 0.95),
    Sketcher.Constraint("DistanceY", -1, 1, 8, 3, 31.75),
    Sketcher.Constraint("DistanceY", 11, 3, -1, 1, 39.75),
    Sketcher.Constraint("DistanceY", 13, 3, -1, 1, 27.918029),
    Sketcher.Constraint("DistanceX", 13, 3, -1, 1, 29.979017),
])
sketch4.setExpression("Constraints[48]", "Params.sketch4_diameter")
sketch4.setExpression("Constraints[49]", "Params.sketch4_diameter2")
sketch4.setExpression("Constraints[50]", "Params.sketch4_diameter3")
pocket3 = doc.addObject("PartDesign::Pocket", "Pocket002")
body.addObject(pocket3)
pocket3.Profile = sketch4
pocket3.setExpression("Length", "Params.pocket3_length")

doc.recompute()
